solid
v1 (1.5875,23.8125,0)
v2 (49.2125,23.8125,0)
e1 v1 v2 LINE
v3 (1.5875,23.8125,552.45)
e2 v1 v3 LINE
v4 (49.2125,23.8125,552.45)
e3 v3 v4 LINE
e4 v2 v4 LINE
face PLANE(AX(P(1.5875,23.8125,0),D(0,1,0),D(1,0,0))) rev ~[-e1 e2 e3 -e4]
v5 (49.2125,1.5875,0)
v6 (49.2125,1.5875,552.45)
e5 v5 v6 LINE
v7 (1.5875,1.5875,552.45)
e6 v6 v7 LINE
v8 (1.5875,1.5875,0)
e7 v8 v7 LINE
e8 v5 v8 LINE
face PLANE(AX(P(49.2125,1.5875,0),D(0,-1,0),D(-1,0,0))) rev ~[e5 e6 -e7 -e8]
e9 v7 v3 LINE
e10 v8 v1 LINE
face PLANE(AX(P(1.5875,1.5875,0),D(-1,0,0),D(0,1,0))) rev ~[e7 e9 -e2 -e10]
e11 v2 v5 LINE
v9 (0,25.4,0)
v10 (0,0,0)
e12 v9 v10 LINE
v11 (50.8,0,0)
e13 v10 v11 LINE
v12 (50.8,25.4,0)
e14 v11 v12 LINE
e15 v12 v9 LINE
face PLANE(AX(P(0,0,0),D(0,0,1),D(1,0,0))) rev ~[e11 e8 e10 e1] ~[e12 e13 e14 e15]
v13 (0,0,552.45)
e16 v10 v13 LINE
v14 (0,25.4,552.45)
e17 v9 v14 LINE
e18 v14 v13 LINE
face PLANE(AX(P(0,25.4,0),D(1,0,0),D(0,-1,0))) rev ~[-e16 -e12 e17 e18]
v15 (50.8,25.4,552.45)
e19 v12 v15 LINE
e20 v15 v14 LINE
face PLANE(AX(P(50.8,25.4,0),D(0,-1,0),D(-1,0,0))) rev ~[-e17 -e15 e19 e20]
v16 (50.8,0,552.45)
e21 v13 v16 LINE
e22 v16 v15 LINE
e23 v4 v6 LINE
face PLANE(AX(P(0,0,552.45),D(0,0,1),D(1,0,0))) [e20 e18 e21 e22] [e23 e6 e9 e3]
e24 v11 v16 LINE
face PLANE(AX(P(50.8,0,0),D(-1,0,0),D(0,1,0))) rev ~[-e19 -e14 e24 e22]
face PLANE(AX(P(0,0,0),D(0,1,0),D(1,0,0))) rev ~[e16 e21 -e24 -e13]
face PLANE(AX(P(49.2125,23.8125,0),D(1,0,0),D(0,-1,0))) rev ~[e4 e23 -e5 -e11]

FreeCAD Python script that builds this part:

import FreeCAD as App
import Part
import Sketcher

V = App.Vector
Q = App.Units.Quantity


def add_polygon(sketch, points):
    """Adds a closed chain of lines whose ends are joined by coincident constraints."""
    first, n = sketch.GeometryCount, len(points)
    for a, b in zip(points, points[1:] + points[:1]):
        sketch.addGeometry(Part.LineSegment(App.Vector(*a, 0), App.Vector(*b, 0)), False)
    for i in range(n):
        sketch.addConstraint(Sketcher.Constraint("Coincident", first + i, 2, first + (i + 1) % n, 1))

doc = App.newDocument("Part")
body = doc.addObject("PartDesign::Body", "Body")

sketch1 = body.newObject("Sketcher::SketchObject", "Sketch")
sketch1.AttachmentSupport = (doc.getObject("XY_Plane"), [""])
sketch1.MapMode = "FlatFace"
add_polygon(sketch1, [(0, 25.4), (0, 0), (50.8, 0), (50.8, 25.4)])
add_polygon(sketch1, [(1.5875, 1.5875), (1.5875, 23.8125), (49.2125, 23.8125), (49.2125, 1.5875)])
sketch1.addConstraint(Sketcher.Constraint("Vertical", 0))
sketch1.addConstraint(Sketcher.Constraint("Horizontal", 1))
sketch1.addConstraint(Sketcher.Constraint("Vertical", 2))
sketch1.addConstraint(Sketcher.Constraint("Horizontal", 3))
sketch1.addConstraint(Sketcher.Constraint("Vertical", 4))
sketch1.addConstraint(Sketcher.Constraint("Horizontal", 5))
sketch1.addConstraint(Sketcher.Constraint("Vertical", 6))
sketch1.addConstraint(Sketcher.Constraint("Horizontal", 7))
sketch1.addConstraint(Sketcher.Constraint("Coincident", 0, 2, -1, 1))
sketch1.addConstraint(Sketcher.Constraint("DistanceX", 1, 1, 1, 2, Q("2 in")))
sketch1.addConstraint(Sketcher.Constraint("DistanceY", 0, 2, 0, 1, Q("1 in")))
sketch1.addConstraint(Sketcher.Constraint("DistanceX", -1, 1, 4, 2, Q("0.0625 in")))
sketch1.addConstraint(Sketcher.Constraint("DistanceY", -1, 1, 6, 2, Q("0.0625 in")))
sketch1.addConstraint(Sketcher.Constraint("DistanceY", 4, 2, 3, 2, Q("0.0625 in")))
sketch1.addConstraint(Sketcher.Constraint("DistanceX", 5, 2, 2, 2, Q("0.0625 in")))
pad1 = body.newObject("PartDesign::Pad", "Pad")
pad1.Profile = sketch1
pad1.Length = Q("21.75 in")

doc.recompute()
